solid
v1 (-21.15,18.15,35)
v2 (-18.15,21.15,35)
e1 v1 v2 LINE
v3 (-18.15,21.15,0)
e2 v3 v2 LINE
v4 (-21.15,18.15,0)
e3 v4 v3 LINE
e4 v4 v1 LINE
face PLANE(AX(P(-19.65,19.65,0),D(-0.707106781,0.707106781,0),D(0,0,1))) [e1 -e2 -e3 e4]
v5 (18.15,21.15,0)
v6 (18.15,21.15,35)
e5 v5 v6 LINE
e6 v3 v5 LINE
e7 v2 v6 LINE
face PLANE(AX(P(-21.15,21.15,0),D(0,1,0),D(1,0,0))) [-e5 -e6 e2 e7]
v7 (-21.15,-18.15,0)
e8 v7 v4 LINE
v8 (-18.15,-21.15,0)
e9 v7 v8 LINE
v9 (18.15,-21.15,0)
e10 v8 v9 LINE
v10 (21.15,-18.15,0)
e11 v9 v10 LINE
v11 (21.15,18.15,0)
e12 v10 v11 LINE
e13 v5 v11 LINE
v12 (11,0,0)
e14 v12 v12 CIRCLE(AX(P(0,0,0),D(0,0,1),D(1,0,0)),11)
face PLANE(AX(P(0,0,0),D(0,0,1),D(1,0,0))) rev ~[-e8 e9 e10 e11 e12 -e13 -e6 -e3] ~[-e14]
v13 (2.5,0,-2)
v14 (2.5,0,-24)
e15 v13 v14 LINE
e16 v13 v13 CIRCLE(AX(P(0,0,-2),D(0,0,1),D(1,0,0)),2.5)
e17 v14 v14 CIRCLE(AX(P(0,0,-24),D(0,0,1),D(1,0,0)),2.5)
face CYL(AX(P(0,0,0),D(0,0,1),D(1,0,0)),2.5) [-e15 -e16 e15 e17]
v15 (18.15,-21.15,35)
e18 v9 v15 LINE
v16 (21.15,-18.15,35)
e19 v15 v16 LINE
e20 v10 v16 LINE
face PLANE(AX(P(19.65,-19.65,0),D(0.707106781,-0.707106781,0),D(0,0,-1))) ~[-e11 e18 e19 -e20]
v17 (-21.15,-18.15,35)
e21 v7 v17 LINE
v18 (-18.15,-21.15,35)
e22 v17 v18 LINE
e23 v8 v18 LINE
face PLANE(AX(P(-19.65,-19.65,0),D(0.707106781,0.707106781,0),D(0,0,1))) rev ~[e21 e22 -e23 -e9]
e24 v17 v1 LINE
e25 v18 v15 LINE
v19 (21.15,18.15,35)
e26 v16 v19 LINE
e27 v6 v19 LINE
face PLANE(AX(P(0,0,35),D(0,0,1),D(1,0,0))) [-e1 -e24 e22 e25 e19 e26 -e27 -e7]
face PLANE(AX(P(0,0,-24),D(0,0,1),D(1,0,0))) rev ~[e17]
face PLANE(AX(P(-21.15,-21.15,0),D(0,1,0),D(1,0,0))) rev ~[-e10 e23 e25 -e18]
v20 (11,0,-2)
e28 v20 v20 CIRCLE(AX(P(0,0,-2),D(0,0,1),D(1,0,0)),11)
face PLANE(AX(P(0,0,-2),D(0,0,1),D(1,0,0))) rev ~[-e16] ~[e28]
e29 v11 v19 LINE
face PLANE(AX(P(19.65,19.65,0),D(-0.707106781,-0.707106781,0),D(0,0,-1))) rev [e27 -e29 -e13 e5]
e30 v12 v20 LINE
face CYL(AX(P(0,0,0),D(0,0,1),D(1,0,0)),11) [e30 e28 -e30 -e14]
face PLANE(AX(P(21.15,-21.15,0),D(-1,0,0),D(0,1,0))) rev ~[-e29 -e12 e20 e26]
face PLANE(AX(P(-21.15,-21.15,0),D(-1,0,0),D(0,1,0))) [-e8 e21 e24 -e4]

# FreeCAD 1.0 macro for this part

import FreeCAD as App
import Part
import Sketcher
Q = App.Units.Quantity


def edges_at(feature, points):
    """Names of the edges that pass closest to the given points."""
    edges = feature.Shape.Edges
    near = lambda p: min(range(len(edges)), key=lambda i: edges[i].distToShape(Part.Vertex(*p))[0])
    return sorted({f"Edge{near(p) + 1}" for p in points})

doc = App.newDocument("Part")
params = doc.addObject("Spreadsheet::Sheet", "Params")
for row, (alias, value) in enumerate([
    ("sketch1_width", "42.3 mm"),
    ("pad1_length", "35 mm"),
    ("sketch2_diameter", "5 mm"),
    ("pad2_length", "24 mm"),
    ("sketch3_diameter", "22 mm"),
    ("sketch3_diameter2", "5 mm"),
    ("pad3_length", "2 mm"),
    ("chamfer_size", "3 mm"),
], start=1):
    params.set(f"A{row}", alias)
    params.set(f"B{row}", "=" + value)
    params.setAlias(f"B{row}", alias)

body = doc.addObject("PartDesign::Body", "Body")

sketch1 = doc.addObject("Sketcher::SketchObject", "Sketch")
body.addObject(sketch1)
sketch1.AttachmentSupport = (doc.XY_Plane, [""])
sketch1.MapMode = "FlatFace"
sketch1.addGeometry([
    Part.LineSegment(App.Vector(-21.15, 21.15, 0), App.Vector(-21.15, -21.15, 0)),
    Part.LineSegment(App.Vector(-21.15, -21.15, 0), App.Vector(21.15, -21.15, 0)),
    Part.LineSegment(App.Vector(21.15, -21.15, 0), App.Vector(21.15, 21.15, 0)),
    Part.LineSegment(App.Vector(21.15, 21.15, 0), App.Vector(-21.15, 21.15, 0)),
], False)
sketch1.addConstraint([
    Sketcher.Constraint("Coincident", 0, 2, 1, 1),
    Sketcher.Constraint("Coincident", 1, 2, 2, 1),
    Sketcher.Constraint("Coincident", 2, 2, 3, 1),
    Sketcher.Constraint("Coincident", 3, 2, 0, 1),
    Sketcher.Constraint("Vertical", 0),
    Sketcher.Constraint("Horizontal", 1),
    Sketcher.Constraint("Vertical", 2),
    Sketcher.Constraint("Horizontal", 3),
    Sketcher.Constraint("Symmetric", 0, 2, 2, 2, -1, 1),
    Sketcher.Constraint("Equal", 3, 0),
    Sketcher.Constraint("DistanceX", 1, 1, 1, 2, Q("42.3 mm")),
])
sketch1.setExpression("Constraints[10]", "Params.sketch1_width")
pad1 = doc.addObject("PartDesign::Pad", "Pad")
body.addObject(pad1)
pad1.Profile = sketch1
pad1.setExpression("Length", "Params.pad1_length")

sketch2 = doc.addObject("Sketcher::SketchObject", "Sketch001")
body.addObject(sketch2)
sketch2.AttachmentSupport = (doc.XY_Plane, [""])
sketch2.MapMode = "FlatFace"
sketch2.addGeometry(Part.Circle(App.Vector(0, 0, 0), App.Vector(0, 0, 1), 2.5), False)
sketch2.addConstraint([
    Sketcher.Constraint("Coincident", 0, 3, -1, 1),
    Sketcher.Constraint("Diameter", 0, Q("5 mm")),
])
sketch2.setExpression("Constraints[1]", "Params.sketch2_diameter")
pad2 = doc.addObject("PartDesign::Pad", "Pad001")
body.addObject(pad2)
pad2.Profile = sketch2
pad2.setExpression("Length", "Params.pad2_length")
pad2.Reversed = True

sketch3 = doc.addObject("Sketcher::SketchObject", "Sketch002")
body.addObject(sketch3)
sketch3.AttachmentSupport = (doc.XY_Plane, [""])
sketch3.MapMode = "FlatFace"
sketch3.addGeometry([
    Part.Circle(App.Vector(0, 0, 0), App.Vector(0, 0, 1), 11),
    Part.Circle(App.Vector(0, 0, 0), App.Vector(0, 0, 1), 2.5),
], False)
sketch3.addConstraint([
    Sketcher.Constraint("Coincident", 0, 3, -1, 1),
    Sketcher.Constraint("Coincident", 1, 3, -1, 1),
    Sketcher.Constraint("Diameter", 0, Q("22 mm")),
    Sketcher.Constraint("Diameter", 1, Q("5 mm")),
])
sketch3.setExpression("Constraints[2]", "Params.sketch3_diameter")
sketch3.setExpression("Constraints[3]", "Params.sketch3_diameter2")
pad3 = doc.addObject("PartDesign::Pad", "Pad002")
body.addObject(pad3)
pad3.Profile = sketch3
pad3.setExpression("Length", "Params.pad3_length")
pad3.Reversed = True
doc.recompute()

chamfer = doc.addObject("PartDesign::Chamfer", "Chamfer")
body.addObject(chamfer)
chamfer.Base = (pad3, edges_at(pad3, [
    (-21.15, -21.15, 17.5),
    (21.15, -21.15, 17.5),
    (21.15, 21.15, 17.5),
    (-21.15, 21.15, 17.5),
]))
chamfer.setExpression("Size", "Params.chamfer_size")

doc.recompute()
